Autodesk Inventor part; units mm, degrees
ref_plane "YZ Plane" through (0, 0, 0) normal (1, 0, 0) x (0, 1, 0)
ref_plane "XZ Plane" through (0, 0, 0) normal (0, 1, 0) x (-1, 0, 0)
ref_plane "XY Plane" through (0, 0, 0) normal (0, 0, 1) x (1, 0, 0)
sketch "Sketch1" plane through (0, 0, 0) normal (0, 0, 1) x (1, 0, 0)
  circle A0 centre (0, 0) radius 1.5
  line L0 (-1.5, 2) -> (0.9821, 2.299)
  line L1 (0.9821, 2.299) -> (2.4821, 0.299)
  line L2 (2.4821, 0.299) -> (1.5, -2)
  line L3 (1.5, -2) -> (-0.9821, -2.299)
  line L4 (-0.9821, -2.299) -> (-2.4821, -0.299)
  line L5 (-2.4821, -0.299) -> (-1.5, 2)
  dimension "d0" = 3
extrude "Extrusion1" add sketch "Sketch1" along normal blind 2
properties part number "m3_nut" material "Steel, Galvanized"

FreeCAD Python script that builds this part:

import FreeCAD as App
import Part
import Sketcher
from FreeCAD import Vector


def add_polygon(sketch, points):
    """Adds a closed chain of lines whose ends are joined by coincident constraints."""
    first, n = sketch.GeometryCount, len(points)
    for a, b in zip(points, points[1:] + points[:1]):
        sketch.addGeometry(Part.LineSegment(App.Vector(*a, 0), App.Vector(*b, 0)), False)
    for i in range(n):
        sketch.addConstraint(Sketcher.Constraint("Coincident", first + i, 2, first + (i + 1) % n, 1))

doc = App.newDocument("Part")
params = doc.addObject("Spreadsheet::Sheet", "Params")
for row, (alias, value) in enumerate([
    ("sketch1_diameter", "3 mm"),
    ("sketch1_length", "2.5 mm"),
    ("pad1_length", "2 mm"),
], start=1):
    params.set(f"A{row}", alias)
    params.set(f"B{row}", "=" + value)
    params.setAlias(f"B{row}", alias)

body = doc.addObject("PartDesign::Body", "Body")

# Sketch on XY plane
sketch1 = body.newObject("Sketcher::SketchObject", "Sketch")
sketch1.AttachmentSupport = (doc.getObject("XY_Plane"), [""])
sketch1.MapMode = "FlatFace"
add_polygon(sketch1, [(1, 2.3), (-1.5, 2), (-2.5, -0.3), (-1, -2.3), (1.5, -2), (2.5, 0.3)])  # lines 0-5
sketch1.addGeometry(Part.Circle(Vector(0, 0, 0), Vector(0, 0, 1), 1.5), False)  # 6
sketch1.addConstraint(Sketcher.Constraint("Coincident", 6, 3, -1, 1))
sketch1.addConstraint(Sketcher.Constraint("Symmetric", 0, 2, 3, 2, -1, 1))
sketch1.addConstraint(Sketcher.Constraint("Symmetric", 1, 2, 4, 2, -1, 1))
sketch1.addConstraint(Sketcher.Constraint("Symmetric", 2, 2, 5, 2, -1, 1))
sketch1.addConstraint(Sketcher.Constraint("Equal", 0, 1))
sketch1.addConstraint(Sketcher.Constraint("Equal", 1, 2))
sketch1.addConstraint(Sketcher.Constraint("Diameter", 6, 3.0))
sketch1.addConstraint(Sketcher.Constraint("DistanceX", 0, 2, 3, 2, 3.0))
sketch1.addConstraint(Sketcher.Constraint("DistanceY", -1, 1, 0, 2, 2.0))
sketch1.addConstraint(Sketcher.Constraint("DistanceY", 2, 2, 1, 2, 2.0))
sketch1.addConstraint(Sketcher.Constraint("Distance", 0, 2.5))
sketch1.setExpression("Constraints[12]", "Params.sketch1_diameter")
sketch1.setExpression("Constraints[16]", "Params.sketch1_length")
pad1 = body.newObject("PartDesign::Pad", "Pad")
pad1.Profile = sketch1
pad1.setExpression("Length", "Params.pad1_length")

doc.recompute()
